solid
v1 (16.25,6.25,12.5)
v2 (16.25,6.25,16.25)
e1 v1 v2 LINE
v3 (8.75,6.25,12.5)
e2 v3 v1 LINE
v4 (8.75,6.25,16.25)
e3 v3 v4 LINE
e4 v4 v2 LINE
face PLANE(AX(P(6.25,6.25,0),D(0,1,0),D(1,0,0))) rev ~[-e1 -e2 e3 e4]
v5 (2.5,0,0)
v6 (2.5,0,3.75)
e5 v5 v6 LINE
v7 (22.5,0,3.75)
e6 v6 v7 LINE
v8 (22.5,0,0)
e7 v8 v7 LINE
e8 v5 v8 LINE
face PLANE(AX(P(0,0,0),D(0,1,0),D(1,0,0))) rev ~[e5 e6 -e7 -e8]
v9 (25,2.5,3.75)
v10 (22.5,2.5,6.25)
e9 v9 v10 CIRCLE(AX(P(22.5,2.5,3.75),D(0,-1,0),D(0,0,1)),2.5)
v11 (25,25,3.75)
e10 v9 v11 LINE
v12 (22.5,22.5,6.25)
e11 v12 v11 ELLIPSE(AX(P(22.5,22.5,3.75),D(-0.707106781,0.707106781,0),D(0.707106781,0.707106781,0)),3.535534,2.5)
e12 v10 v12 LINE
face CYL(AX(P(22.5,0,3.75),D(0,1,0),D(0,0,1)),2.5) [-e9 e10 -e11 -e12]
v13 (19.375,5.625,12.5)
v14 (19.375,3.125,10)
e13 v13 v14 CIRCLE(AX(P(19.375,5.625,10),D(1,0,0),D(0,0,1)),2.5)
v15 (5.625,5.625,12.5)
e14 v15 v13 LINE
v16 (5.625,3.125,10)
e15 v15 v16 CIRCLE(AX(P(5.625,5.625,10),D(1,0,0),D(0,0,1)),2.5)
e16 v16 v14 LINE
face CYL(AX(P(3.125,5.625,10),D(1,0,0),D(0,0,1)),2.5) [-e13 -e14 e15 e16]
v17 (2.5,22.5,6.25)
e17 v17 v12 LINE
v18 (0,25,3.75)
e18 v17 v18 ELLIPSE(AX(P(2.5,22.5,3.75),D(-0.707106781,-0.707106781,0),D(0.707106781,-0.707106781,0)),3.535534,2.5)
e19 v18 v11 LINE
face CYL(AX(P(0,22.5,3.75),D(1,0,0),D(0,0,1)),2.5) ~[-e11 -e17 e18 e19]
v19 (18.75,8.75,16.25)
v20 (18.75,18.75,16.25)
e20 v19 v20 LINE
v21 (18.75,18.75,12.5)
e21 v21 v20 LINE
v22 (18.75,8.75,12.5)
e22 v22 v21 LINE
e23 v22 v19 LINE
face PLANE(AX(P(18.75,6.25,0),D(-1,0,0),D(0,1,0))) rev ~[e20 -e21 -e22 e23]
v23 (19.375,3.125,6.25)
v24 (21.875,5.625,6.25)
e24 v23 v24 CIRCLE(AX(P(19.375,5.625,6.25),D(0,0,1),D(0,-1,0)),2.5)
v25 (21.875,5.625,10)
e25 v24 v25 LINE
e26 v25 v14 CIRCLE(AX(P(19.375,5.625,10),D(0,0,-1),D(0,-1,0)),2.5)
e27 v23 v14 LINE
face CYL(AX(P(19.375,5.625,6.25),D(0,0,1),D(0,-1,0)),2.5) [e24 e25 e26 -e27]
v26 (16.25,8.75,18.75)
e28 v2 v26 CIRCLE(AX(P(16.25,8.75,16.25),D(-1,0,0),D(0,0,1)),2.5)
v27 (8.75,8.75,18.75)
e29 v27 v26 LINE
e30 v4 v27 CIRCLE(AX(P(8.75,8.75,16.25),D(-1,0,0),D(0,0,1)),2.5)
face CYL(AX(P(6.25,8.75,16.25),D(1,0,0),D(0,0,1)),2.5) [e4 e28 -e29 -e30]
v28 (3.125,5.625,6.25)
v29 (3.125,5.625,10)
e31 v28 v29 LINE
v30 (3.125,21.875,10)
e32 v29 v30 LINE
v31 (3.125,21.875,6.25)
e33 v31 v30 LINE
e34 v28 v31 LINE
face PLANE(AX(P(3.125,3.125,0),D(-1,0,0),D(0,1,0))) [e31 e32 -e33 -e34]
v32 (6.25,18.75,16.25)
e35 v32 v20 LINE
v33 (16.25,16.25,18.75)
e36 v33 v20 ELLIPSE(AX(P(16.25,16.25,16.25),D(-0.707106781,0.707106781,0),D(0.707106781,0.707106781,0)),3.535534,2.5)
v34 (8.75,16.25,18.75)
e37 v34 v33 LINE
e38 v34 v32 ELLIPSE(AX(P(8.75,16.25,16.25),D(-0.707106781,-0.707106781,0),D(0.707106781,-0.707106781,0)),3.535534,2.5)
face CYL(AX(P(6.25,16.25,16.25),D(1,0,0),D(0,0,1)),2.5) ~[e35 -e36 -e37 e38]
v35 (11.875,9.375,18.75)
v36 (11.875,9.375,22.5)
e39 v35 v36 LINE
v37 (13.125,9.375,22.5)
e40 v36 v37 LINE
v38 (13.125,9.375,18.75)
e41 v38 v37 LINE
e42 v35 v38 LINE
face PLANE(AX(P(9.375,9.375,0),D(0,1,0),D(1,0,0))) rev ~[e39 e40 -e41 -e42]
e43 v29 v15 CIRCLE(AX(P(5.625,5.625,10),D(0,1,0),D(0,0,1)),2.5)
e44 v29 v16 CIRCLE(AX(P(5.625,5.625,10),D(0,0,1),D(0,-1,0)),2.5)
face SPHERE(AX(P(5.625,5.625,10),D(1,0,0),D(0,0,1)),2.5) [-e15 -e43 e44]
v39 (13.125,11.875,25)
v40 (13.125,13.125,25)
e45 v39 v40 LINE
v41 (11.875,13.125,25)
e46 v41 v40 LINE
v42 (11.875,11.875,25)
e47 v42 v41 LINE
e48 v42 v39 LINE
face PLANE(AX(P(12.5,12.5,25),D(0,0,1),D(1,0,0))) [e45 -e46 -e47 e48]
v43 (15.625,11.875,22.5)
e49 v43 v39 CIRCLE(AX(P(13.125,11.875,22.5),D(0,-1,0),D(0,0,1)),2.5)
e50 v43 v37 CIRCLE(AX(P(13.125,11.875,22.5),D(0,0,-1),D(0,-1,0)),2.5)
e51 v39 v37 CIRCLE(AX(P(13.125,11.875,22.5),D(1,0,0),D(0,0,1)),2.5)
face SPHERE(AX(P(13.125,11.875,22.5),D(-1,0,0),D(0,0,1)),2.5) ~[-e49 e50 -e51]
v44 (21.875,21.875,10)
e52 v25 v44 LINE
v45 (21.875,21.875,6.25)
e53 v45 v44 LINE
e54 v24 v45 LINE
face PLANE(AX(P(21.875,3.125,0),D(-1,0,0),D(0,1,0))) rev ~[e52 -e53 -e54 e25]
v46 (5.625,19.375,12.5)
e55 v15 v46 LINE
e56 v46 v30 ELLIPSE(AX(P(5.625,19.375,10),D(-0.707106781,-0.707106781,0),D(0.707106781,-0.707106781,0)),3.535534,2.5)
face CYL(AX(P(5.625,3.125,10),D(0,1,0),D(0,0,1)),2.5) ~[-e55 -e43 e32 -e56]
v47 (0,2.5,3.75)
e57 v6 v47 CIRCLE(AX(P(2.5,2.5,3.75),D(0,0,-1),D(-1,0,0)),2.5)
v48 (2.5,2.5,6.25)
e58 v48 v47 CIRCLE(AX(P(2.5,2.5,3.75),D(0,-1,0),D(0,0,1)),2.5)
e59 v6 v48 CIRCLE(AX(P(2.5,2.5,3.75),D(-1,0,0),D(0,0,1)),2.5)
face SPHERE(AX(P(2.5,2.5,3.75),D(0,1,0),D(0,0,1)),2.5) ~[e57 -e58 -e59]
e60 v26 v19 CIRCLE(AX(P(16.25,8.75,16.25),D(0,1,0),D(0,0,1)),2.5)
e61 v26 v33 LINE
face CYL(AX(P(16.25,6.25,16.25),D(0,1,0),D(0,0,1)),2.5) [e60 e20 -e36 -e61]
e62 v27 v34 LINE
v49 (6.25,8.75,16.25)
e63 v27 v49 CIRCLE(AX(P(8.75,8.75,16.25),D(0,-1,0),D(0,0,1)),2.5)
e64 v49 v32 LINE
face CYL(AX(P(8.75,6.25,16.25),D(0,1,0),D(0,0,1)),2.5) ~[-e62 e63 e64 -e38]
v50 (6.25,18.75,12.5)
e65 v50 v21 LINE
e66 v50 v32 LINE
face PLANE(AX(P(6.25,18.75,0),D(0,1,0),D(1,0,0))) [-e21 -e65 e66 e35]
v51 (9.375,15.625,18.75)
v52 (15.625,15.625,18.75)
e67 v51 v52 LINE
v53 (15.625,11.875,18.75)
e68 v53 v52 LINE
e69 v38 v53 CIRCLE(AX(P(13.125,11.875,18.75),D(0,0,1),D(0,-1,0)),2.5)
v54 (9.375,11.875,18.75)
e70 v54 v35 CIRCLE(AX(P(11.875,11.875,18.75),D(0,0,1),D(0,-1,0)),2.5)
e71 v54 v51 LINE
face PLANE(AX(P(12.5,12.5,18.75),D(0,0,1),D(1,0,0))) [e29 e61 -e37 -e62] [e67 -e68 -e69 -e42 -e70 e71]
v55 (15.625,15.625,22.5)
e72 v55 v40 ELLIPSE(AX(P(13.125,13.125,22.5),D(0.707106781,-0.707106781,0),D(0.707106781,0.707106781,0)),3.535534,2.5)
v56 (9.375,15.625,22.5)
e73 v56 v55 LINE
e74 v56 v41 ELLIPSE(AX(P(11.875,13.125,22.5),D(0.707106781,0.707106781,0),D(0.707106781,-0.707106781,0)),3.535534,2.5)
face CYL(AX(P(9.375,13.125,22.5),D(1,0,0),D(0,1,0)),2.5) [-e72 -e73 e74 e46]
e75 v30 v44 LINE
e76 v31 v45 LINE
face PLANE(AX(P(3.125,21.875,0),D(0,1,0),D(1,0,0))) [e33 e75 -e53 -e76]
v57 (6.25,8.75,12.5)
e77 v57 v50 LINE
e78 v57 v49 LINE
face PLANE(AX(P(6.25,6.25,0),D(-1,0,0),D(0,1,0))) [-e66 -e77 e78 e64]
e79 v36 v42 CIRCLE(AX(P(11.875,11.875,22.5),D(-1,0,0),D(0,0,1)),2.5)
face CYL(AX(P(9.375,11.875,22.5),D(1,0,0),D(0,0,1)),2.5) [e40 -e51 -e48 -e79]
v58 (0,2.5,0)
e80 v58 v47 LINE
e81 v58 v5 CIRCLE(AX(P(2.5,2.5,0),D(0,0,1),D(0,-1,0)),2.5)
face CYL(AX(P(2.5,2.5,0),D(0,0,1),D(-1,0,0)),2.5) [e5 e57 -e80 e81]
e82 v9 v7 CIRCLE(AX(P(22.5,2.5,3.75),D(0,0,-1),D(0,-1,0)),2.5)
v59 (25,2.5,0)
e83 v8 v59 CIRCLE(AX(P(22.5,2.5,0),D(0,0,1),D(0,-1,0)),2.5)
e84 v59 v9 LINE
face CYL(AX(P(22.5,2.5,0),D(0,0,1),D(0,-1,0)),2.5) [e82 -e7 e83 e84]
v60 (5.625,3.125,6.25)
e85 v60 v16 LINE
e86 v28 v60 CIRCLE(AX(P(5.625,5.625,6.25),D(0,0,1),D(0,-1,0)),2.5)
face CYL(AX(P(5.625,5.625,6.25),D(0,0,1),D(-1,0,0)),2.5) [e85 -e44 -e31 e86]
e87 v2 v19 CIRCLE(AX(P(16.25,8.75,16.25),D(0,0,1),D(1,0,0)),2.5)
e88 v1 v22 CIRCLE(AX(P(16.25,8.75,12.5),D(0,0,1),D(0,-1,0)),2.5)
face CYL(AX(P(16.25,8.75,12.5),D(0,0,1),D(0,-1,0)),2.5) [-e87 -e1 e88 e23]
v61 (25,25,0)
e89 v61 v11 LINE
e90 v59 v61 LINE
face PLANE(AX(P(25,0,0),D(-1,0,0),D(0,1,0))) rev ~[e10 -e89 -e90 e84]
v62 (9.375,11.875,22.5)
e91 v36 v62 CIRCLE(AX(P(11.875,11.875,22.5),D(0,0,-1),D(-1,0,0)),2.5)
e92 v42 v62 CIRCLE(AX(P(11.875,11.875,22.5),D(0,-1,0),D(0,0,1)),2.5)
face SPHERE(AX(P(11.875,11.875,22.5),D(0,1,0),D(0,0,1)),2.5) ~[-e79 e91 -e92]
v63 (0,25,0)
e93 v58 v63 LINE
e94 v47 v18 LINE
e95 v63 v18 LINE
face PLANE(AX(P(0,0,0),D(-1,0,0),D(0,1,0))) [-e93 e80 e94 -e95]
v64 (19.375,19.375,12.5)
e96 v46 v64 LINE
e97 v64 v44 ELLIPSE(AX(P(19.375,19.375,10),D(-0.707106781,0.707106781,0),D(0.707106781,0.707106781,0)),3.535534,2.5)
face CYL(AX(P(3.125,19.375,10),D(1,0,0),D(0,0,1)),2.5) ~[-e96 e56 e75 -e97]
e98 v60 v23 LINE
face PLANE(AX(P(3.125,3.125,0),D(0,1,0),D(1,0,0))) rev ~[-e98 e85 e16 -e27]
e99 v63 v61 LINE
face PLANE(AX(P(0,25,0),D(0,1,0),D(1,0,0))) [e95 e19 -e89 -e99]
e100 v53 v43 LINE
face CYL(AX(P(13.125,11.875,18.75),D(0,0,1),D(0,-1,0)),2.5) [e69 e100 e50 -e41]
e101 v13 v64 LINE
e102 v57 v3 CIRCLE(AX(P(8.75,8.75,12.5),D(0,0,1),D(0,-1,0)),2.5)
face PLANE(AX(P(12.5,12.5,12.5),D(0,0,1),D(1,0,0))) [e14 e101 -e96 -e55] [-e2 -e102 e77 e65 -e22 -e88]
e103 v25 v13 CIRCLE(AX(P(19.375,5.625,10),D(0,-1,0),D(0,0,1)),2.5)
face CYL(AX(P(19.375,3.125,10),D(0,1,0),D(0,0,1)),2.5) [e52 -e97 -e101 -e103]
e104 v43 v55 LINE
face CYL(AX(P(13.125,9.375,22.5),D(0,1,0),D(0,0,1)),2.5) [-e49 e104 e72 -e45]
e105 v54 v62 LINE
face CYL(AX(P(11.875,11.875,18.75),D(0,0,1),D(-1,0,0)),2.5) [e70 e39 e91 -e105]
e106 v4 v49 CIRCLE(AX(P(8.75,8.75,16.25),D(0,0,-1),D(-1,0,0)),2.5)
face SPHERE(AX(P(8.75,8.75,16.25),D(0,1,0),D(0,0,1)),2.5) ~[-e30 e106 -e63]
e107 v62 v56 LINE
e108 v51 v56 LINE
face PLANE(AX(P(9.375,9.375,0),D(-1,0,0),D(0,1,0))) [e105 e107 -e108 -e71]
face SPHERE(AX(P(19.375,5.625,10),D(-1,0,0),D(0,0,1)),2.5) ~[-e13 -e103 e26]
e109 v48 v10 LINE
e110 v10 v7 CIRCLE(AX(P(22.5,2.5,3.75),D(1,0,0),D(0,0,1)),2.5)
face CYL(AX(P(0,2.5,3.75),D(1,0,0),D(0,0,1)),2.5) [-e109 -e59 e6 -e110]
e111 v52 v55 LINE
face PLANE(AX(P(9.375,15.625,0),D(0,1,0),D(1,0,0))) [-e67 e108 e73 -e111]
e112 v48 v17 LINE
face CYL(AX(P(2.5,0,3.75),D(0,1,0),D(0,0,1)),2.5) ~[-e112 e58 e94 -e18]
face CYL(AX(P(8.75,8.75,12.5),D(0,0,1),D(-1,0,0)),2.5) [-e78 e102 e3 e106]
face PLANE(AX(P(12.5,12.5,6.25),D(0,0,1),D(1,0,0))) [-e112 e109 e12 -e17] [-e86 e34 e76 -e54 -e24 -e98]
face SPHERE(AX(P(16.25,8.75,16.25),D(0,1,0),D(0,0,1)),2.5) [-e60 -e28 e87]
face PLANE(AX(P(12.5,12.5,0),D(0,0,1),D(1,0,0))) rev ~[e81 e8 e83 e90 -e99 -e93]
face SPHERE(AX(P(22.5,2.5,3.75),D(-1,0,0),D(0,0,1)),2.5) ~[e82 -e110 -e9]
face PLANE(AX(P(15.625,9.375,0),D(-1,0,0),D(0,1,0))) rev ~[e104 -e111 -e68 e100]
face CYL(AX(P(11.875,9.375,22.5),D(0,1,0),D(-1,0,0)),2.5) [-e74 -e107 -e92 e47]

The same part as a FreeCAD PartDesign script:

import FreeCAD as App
import Part
import Sketcher
Q = App.Units.Quantity


def edges_at(feature, points):
    """Names of the edges that pass closest to the given points."""
    edges = feature.Shape.Edges
    near = lambda p: min(range(len(edges)), key=lambda i: edges[i].distToShape(Part.Vertex(*p))[0])
    return sorted({f"Edge{near(p) + 1}" for p in points})

doc = App.newDocument("Part")
body = doc.addObject("PartDesign::Body", "Body")

sketch1 = doc.addObject("Sketcher::SketchObject", "Sketch")
body.addObject(sketch1)
sketch1.AttachmentSupport = (doc.XY_Plane, [""])
sketch1.MapMode = "FlatFace"
sketch1.addGeometry([
    Part.LineSegment(App.Vector(0, 25, 0), App.Vector(0, 0, 0)),
    Part.LineSegment(App.Vector(0, 0, 0), App.Vector(25, 0, 0)),
    Part.LineSegment(App.Vector(25, 0, 0), App.Vector(25, 25, 0)),
    Part.LineSegment(App.Vector(25, 25, 0), App.Vector(0, 25, 0)),
    Part.LineSegment(App.Vector(22, 3, 0), App.Vector(3, 3, 0)),
    Part.LineSegment(App.Vector(3, 3, 0), App.Vector(3, 22, 0)),
    Part.LineSegment(App.Vector(3, 22, 0), App.Vector(22, 22, 0)),
    Part.LineSegment(App.Vector(22, 22, 0), App.Vector(22, 3, 0)),
], False)
sketch1.addConstraint([
    Sketcher.Constraint("Coincident", 0, 2, 1, 1),
    Sketcher.Constraint("Coincident", 1, 2, 2, 1),
    Sketcher.Constraint("Coincident", 2, 2, 3, 1),
    Sketcher.Constraint("Coincident", 3, 2, 0, 1),
    Sketcher.Constraint("Coincident", 4, 2, 5, 1),
    Sketcher.Constraint("Coincident", 5, 2, 6, 1),
    Sketcher.Constraint("Coincident", 6, 2, 7, 1),
    Sketcher.Constraint("Coincident", 7, 2, 4, 1),
    Sketcher.Constraint("Vertical", 0),
    Sketcher.Constraint("Horizontal", 1),
    Sketcher.Constraint("Vertical", 2),
    Sketcher.Constraint("Horizontal", 3),
    Sketcher.Constraint("Horizontal", 4),
    Sketcher.Constraint("Vertical", 5),
    Sketcher.Constraint("Horizontal", 6),
    Sketcher.Constraint("Vertical", 7),
    Sketcher.Constraint("Coincident", 0, 2, -1, 1),
    Sketcher.Constraint("Equal", 3, 0),
    Sketcher.Constraint("Equal", 6, 5),
    Sketcher.Constraint("DistanceX", 1, 1, 1, 2, Q("25 mm")),
    Sketcher.Constraint("DistanceX", 4, 2, 4, 1, Q("18.75 mm")),
    Sketcher.Constraint("DistanceX", -1, 1, 4, 2, Q("3.125 mm")),
    Sketcher.Constraint("DistanceY", -1, 1, 4, 2, Q("3.125 mm")),
])
pad1 = doc.addObject("PartDesign::Pad", "Pad")
body.addObject(pad1)
pad1.Profile = sketch1
pad1.Length = 6.25

sketch2 = doc.addObject("Sketcher::SketchObject", "Sketch001")
body.addObject(sketch2)
sketch2.AttachmentSupport = (doc.XY_Plane, [""])
sketch2.MapMode = "FlatFace"
sketch2.addGeometry([
    Part.LineSegment(App.Vector(3, 22, 0), App.Vector(3, 3, 0)),
    Part.LineSegment(App.Vector(3, 3, 0), App.Vector(22, 3, 0)),
    Part.LineSegment(App.Vector(22, 3, 0), App.Vector(22, 22, 0)),
    Part.LineSegment(App.Vector(22, 22, 0), App.Vector(3, 22, 0)),
    Part.LineSegment(App.Vector(19, 6, 0), App.Vector(6, 6, 0)),
    Part.LineSegment(App.Vector(6, 6, 0), App.Vector(6, 19, 0)),
    Part.LineSegment(App.Vector(6, 19, 0), App.Vector(19, 19, 0)),
    Part.LineSegment(App.Vector(19, 19, 0), App.Vector(19, 6, 0)),
], False)
sketch2.addConstraint([
    Sketcher.Constraint("Coincident", 0, 2, 1, 1),
    Sketcher.Constraint("Coincident", 1, 2, 2, 1),
    Sketcher.Constraint("Coincident", 2, 2, 3, 1),
    Sketcher.Constraint("Coincident", 3, 2, 0, 1),
    Sketcher.Constraint("Coincident", 4, 2, 5, 1),
    Sketcher.Constraint("Coincident", 5, 2, 6, 1),
    Sketcher.Constraint("Coincident", 6, 2, 7, 1),
    Sketcher.Constraint("Coincident", 7, 2, 4, 1),
    Sketcher.Constraint("Vertical", 0),
    Sketcher.Constraint("Horizontal", 1),
    Sketcher.Constraint("Vertical", 2),
    Sketcher.Constraint("Horizontal", 3),
    Sketcher.Constraint("Horizontal", 4),
    Sketcher.Constraint("Vertical", 5),
    Sketcher.Constraint("Horizontal", 6),
    Sketcher.Constraint("Vertical", 7),
    Sketcher.Constraint("Equal", 3, 0),
    Sketcher.Constraint("Equal", 6, 5),
    Sketcher.Constraint("DistanceX", 4, 2, 4, 1, Q("12.5 mm")),
    Sketcher.Constraint("DistanceX", 1, 1, 1, 2, Q("18.75 mm")),
    Sketcher.Constraint("DistanceX", -1, 1, 4, 2, Q("6.25 mm")),
    Sketcher.Constraint("DistanceY", -1, 1, 4, 2, Q("6.25 mm")),
    Sketcher.Constraint("DistanceX", -1, 1, 0, 2, Q("3.125 mm")),
    Sketcher.Constraint("DistanceY", -1, 1, 0, 2, Q("3.125 mm")),
])
pad2 = doc.addObject("PartDesign::Pad", "Pad001")
body.addObject(pad2)
pad2.Profile = sketch2
pad2.Length = 12.5

sketch3 = doc.addObject("Sketcher::SketchObject", "Sketch002")
body.addObject(sketch3)
sketch3.AttachmentSupport = (doc.XY_Plane, [""])
sketch3.MapMode = "FlatFace"
sketch3.addGeometry([
    Part.LineSegment(App.Vector(6, 19, 0), App.Vector(6, 6, 0)),
    Part.LineSegment(App.Vector(6, 6, 0), App.Vector(19, 6, 0)),
    Part.LineSegment(App.Vector(19, 6, 0), App.Vector(19, 19, 0)),
    Part.LineSegment(App.Vector(19, 19, 0), App.Vector(6, 19, 0)),
    Part.LineSegment(App.Vector(16, 9, 0), App.Vector(9, 9, 0)),
    Part.LineSegment(App.Vector(9, 9, 0), App.Vector(9, 16, 0)),
    Part.LineSegment(App.Vector(9, 16, 0), App.Vector(16, 16, 0)),
    Part.LineSegment(App.Vector(16, 16, 0), App.Vector(16, 9, 0)),
], False)
sketch3.addConstraint([
    Sketcher.Constraint("Coincident", 0, 2, 1, 1),
    Sketcher.Constraint("Coincident", 1, 2, 2, 1),
    Sketcher.Constraint("Coincident", 2, 2, 3, 1),
    Sketcher.Constraint("Coincident", 3, 2, 0, 1),
    Sketcher.Constraint("Coincident", 4, 2, 5, 1),
    Sketcher.Constraint("Coincident", 5, 2, 6, 1),
    Sketcher.Constraint("Coincident", 6, 2, 7, 1),
    Sketcher.Constraint("Coincident", 7, 2, 4, 1),
    Sketcher.Constraint("Vertical", 0),
    Sketcher.Constraint("Horizontal", 1),
    Sketcher.Constraint("Vertical", 2),
    Sketcher.Constraint("Horizontal", 3),
    Sketcher.Constraint("Horizontal", 4),
    Sketcher.Constraint("Vertical", 5),
    Sketcher.Constraint("Horizontal", 6),
    Sketcher.Constraint("Vertical", 7),
    Sketcher.Constraint("Equal", 3, 0),
    Sketcher.Constraint("Equal", 6, 5),
    Sketcher.Constraint("DistanceX", 1, 1, 1, 2, Q("12.5 mm")),
    Sketcher.Constraint("DistanceX", 4, 2, 4, 1, Q("6.25 mm")),
    Sketcher.Constraint("DistanceX", -1, 1, 0, 2, Q("6.25 mm")),
    Sketcher.Constraint("DistanceY", -1, 1, 0, 2, Q("6.25 mm")),
    Sketcher.Constraint("DistanceX", -1, 1, 4, 2, Q("9.375 mm")),
    Sketcher.Constraint("DistanceY", -1, 1, 4, 2, Q("9.375 mm")),
])
pad3 = doc.addObject("PartDesign::Pad", "Pad002")
body.addObject(pad3)
pad3.Profile = sketch3
pad3.Length = 18.75

sketch4 = doc.addObject("Sketcher::SketchObject", "Sketch003")
body.addObject(sketch4)
sketch4.AttachmentSupport = (doc.XY_Plane, [""])
sketch4.MapMode = "FlatFace"
sketch4.addGeometry([
    Part.LineSegment(App.Vector(9, 16, 0), App.Vector(9, 9, 0)),
    Part.LineSegment(App.Vector(9, 9, 0), App.Vector(16, 9, 0)),
    Part.LineSegment(App.Vector(16, 9, 0), App.Vector(16, 16, 0)),
    Part.LineSegment(App.Vector(16, 16, 0), App.Vector(9, 16, 0)),
], False)
sketch4.addConstraint([
    Sketcher.Constraint("Coincident", 0, 2, 1, 1),
    Sketcher.Constraint("Coincident", 1, 2, 2, 1),
    Sketcher.Constraint("Coincident", 2, 2, 3, 1),
    Sketcher.Constraint("Coincident", 3, 2, 0, 1),
    Sketcher.Constraint("Vertical", 0),
    Sketcher.Constraint("Horizontal", 1),
    Sketcher.Constraint("Vertical", 2),
    Sketcher.Constraint("Horizontal", 3),
    Sketcher.Constraint("Equal", 3, 0),
    Sketcher.Constraint("DistanceX", 1, 1, 1, 2, Q("6.25 mm")),
    Sketcher.Constraint("DistanceX", -1, 1, 0, 2, Q("9.375 mm")),
    Sketcher.Constraint("DistanceY", -1, 1, 0, 2, Q("9.375 mm")),
])
pad4 = doc.addObject("PartDesign::Pad", "Pad003")
body.addObject(pad4)
pad4.Profile = sketch4
pad4.Length = 25
doc.recompute()

fillet = doc.addObject("PartDesign::Fillet", "Fillet")
body.addObject(fillet)
fillet.Base = (pad4, edges_at(pad4, [
    (18.75, 12.5, 18.75),
    (12.5, 18.75, 18.75),
    (6.25, 12.5, 18.75),
    (12.5, 6.25, 18.75),
    (12.5, 15.625, 25),
    (9.375, 12.5, 25),
    (12.5, 9.375, 25),
    (15.625, 12.5, 25),
    (12.5, 3.125, 12.5),
    (21.875, 12.5, 12.5),
    (12.5, 21.875, 12.5),
    (3.125, 12.5, 12.5),
    (12.5, 25, 6.25),
    (0, 12.5, 6.25),
    (12.5, 0, 6.25),
    (15.625, 9.375, 21.875),
    (9.375, 9.375, 21.875),
    (6.25, 6.25, 15.625),
    (18.75, 6.25, 15.625),
    (3.125, 3.125, 9.375),
    (21.875, 3.125, 9.375),
    (25, 12.5, 6.25),
    (25, 0, 3.125),
    (0, 0, 3.125),
]))
fillet.Radius = 2.5

doc.recompute()
